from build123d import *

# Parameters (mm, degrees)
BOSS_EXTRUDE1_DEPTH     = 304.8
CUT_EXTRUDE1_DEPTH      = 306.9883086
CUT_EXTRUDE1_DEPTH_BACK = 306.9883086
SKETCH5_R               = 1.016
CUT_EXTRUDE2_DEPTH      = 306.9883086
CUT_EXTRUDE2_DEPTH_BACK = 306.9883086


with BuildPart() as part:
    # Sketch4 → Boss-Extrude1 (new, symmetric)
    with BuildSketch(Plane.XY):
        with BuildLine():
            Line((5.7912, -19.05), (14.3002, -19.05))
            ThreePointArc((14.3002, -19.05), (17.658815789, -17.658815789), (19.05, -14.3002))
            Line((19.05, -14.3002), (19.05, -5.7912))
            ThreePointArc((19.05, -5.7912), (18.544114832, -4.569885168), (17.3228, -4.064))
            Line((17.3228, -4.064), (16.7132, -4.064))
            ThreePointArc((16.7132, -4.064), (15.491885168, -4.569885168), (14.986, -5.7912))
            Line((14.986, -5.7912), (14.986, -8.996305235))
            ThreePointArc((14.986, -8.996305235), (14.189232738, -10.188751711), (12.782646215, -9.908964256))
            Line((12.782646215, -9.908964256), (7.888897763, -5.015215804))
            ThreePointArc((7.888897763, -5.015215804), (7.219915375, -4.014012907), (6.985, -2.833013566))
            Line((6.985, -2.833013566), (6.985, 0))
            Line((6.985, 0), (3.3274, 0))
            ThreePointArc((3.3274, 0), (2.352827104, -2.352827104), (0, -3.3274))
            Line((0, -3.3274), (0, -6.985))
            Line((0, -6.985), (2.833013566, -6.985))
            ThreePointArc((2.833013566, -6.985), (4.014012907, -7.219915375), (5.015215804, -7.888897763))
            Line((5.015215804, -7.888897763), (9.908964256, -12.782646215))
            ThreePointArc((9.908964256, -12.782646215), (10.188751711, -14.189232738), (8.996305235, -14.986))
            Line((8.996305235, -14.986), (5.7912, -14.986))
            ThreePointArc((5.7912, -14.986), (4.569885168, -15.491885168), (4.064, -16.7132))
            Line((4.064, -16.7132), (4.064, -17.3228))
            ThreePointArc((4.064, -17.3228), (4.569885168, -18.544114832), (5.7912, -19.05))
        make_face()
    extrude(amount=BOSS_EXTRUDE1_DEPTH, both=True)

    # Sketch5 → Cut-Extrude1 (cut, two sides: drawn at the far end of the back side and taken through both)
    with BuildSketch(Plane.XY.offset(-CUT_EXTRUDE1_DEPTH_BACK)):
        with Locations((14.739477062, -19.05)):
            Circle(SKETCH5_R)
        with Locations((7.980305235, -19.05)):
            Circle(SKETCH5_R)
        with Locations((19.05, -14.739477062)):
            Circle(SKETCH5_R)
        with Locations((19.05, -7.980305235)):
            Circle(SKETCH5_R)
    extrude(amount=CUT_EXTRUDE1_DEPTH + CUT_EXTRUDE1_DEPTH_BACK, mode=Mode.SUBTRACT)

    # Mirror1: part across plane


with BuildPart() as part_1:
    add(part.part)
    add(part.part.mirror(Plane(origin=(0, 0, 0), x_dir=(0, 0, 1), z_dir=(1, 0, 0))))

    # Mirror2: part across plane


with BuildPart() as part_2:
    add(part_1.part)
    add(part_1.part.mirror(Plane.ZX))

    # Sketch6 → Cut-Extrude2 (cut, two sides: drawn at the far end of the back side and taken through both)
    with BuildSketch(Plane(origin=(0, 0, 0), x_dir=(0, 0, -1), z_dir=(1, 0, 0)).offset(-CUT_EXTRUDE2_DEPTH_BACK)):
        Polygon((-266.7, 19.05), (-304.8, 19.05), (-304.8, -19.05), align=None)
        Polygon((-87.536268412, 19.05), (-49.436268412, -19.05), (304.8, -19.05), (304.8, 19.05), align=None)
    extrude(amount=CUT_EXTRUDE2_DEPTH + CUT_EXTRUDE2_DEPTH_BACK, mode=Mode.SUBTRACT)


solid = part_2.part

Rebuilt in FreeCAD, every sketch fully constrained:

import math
import FreeCAD as App
import Part
import Sketcher
Q = App.Units.Quantity


def add_polygon(sketch, points):
    """Adds a closed chain of lines whose ends are joined by coincident constraints."""
    first, n = sketch.GeometryCount, len(points)
    for a, b in zip(points, points[1:] + points[:1]):
        sketch.addGeometry(Part.LineSegment(App.Vector(*a, 0), App.Vector(*b, 0)), False)
    for i in range(n):
        sketch.addConstraint(Sketcher.Constraint("Coincident", first + i, 2, first + (i + 1) % n, 1))

doc = App.newDocument("Part")
body = doc.addObject("PartDesign::Body", "Body")

sketch1 = body.newObject("Sketcher::SketchObject", "Sketch")
sketch1.AttachmentSupport = (doc.getObject("XY_Plane"), [""])
sketch1.MapMode = "FlatFace"
sketch1.addGeometry(Part.LineSegment(App.Vector(5.8, -19.1, 0), App.Vector(14.3, -19.1, 0)), False)
sketch1.addGeometry(Part.ArcOfCircle(Part.Circle(App.Vector(14.3, -14.3, 0), App.Vector(0, 0, 1), 4.7), math.radians(-90), math.radians(0)), False)
sketch1.addGeometry(Part.LineSegment(App.Vector(19.1, -14.3, 0), App.Vector(19.1, -5.8, 0)), False)
sketch1.addGeometry(Part.ArcOfCircle(Part.Circle(App.Vector(17.3, -5.8, 0), App.Vector(0, 0, 1), 1.7), math.radians(0), math.radians(90)), False)
sketch1.addGeometry(Part.LineSegment(App.Vector(17.3, -4.1, 0), App.Vector(16.7, -4.1, 0)), False)
sketch1.addGeometry(Part.ArcOfCircle(Part.Circle(App.Vector(16.7, -5.8, 0), App.Vector(0, 0, 1), 1.7), math.radians(90), math.radians(180)), False)
sketch1.addGeometry(Part.LineSegment(App.Vector(15, -5.8, 0), App.Vector(15, -9, 0)), False)
sketch1.addGeometry(Part.ArcOfCircle(Part.Circle(App.Vector(13.7, -9, 0), App.Vector(0, 0, 1), 1.3), math.radians(-135), math.radians(0)), False)
sketch1.addGeometry(Part.LineSegment(App.Vector(12.8, -9.9, 0), App.Vector(7.9, -5, 0)), False)
sketch1.addGeometry(Part.ArcOfCircle(Part.Circle(App.Vector(10.1, -2.8, 0), App.Vector(0, 0, 1), 3.1), math.radians(-180), math.radians(-135)), False)
sketch1.addGeometry(Part.LineSegment(App.Vector(7, -2.8, 0), App.Vector(7, 0, 0)), False)
sketch1.addGeometry(Part.LineSegment(App.Vector(7, 0, 0), App.Vector(3.3, 0, 0)), False)
sketch1.addGeometry(Part.ArcOfCircle(Part.Circle(App.Vector(0, 0, 0), App.Vector(0, 0, 1), 3.3), math.radians(-90), math.radians(0)), False)
sketch1.addGeometry(Part.LineSegment(App.Vector(0, -3.3, 0), App.Vector(0, -7, 0)), False)
sketch1.addGeometry(Part.LineSegment(App.Vector(0, -7, 0), App.Vector(2.8, -7, 0)), False)
sketch1.addGeometry(Part.ArcOfCircle(Part.Circle(App.Vector(2.8, -10.1, 0), App.Vector(0, 0, 1), 3.1), math.radians(45), math.radians(90)), False)
sketch1.addGeometry(Part.LineSegment(App.Vector(5, -7.9, 0), App.Vector(9.9, -12.8, 0)), False)
sketch1.addGeometry(Part.ArcOfCircle(Part.Circle(App.Vector(9, -13.7, 0), App.Vector(0, 0, 1), 1.3), math.radians(-90), math.radians(45)), False)
sketch1.addGeometry(Part.LineSegment(App.Vector(9, -15, 0), App.Vector(5.8, -15, 0)), False)
sketch1.addGeometry(Part.ArcOfCircle(Part.Circle(App.Vector(5.8, -16.7, 0), App.Vector(0, 0, 1), 1.7), math.radians(90), math.radians(180)), False)
sketch1.addGeometry(Part.LineSegment(App.Vector(4.1, -16.7, 0), App.Vector(4.1, -17.3, 0)), False)
sketch1.addGeometry(Part.ArcOfCircle(Part.Circle(App.Vector(5.8, -17.3, 0), App.Vector(0, 0, 1), 1.7), math.radians(-180), math.radians(-90)), False)
sketch1.addConstraint(Sketcher.Constraint("Tangent", 0, 2, 1, 1))
sketch1.addConstraint(Sketcher.Constraint("Tangent", 1, 2, 2, 1))
sketch1.addConstraint(Sketcher.Constraint("Tangent", 2, 2, 3, 1))
sketch1.addConstraint(Sketcher.Constraint("Tangent", 3, 2, 4, 1))
sketch1.addConstraint(Sketcher.Constraint("Tangent", 4, 2, 5, 1))
sketch1.addConstraint(Sketcher.Constraint("Tangent", 5, 2, 6, 1))
sketch1.addConstraint(Sketcher.Constraint("Tangent", 6, 2, 7, 2))
sketch1.addConstraint(Sketcher.Constraint("Tangent", 7, 1, 8, 1))
sketch1.addConstraint(Sketcher.Constraint("Tangent", 8, 2, 9, 2))
sketch1.addConstraint(Sketcher.Constraint("Tangent", 9, 1, 10, 1))
sketch1.addConstraint(Sketcher.Constraint("Coincident", 10, 2, 11, 1))
sketch1.addConstraint(Sketcher.Constraint("Coincident", 11, 2, 12, 2))
sketch1.addConstraint(Sketcher.Constraint("Coincident", 12, 1, 13, 1))
sketch1.addConstraint(Sketcher.Constraint("Coincident", 13, 2, 14, 1))
sketch1.addConstraint(Sketcher.Constraint("Tangent", 14, 2, 15, 2))
sketch1.addConstraint(Sketcher.Constraint("Tangent", 15, 1, 16, 1))
sketch1.addConstraint(Sketcher.Constraint("Tangent", 16, 2, 17, 2))
sketch1.addConstraint(Sketcher.Constraint("Tangent", 17, 1, 18, 1))
sketch1.addConstraint(Sketcher.Constraint("Tangent", 18, 2, 19, 1))
sketch1.addConstraint(Sketcher.Constraint("Tangent", 19, 2, 20, 1))
sketch1.addConstraint(Sketcher.Constraint("Tangent", 20, 2, 21, 1))
sketch1.addConstraint(Sketcher.Constraint("Tangent", 21, 2, 0, 1))
sketch1.addConstraint(Sketcher.Constraint("Horizontal", 0))
sketch1.addConstraint(Sketcher.Constraint("Vertical", 2))
sketch1.addConstraint(Sketcher.Constraint("Horizontal", 4))
sketch1.addConstraint(Sketcher.Constraint("Vertical", 6))
sketch1.addConstraint(Sketcher.Constraint("Vertical", 10))
sketch1.addConstraint(Sketcher.Constraint("Horizontal", 11))
sketch1.addConstraint(Sketcher.Constraint("Vertical", 13))
sketch1.addConstraint(Sketcher.Constraint("Horizontal", 14))
sketch1.addConstraint(Sketcher.Constraint("Horizontal", 18))
sketch1.addConstraint(Sketcher.Constraint("Vertical", 20))
sketch1.addConstraint(Sketcher.Constraint("Coincident", 12, 3, -1, 1))
sketch1.addConstraint(Sketcher.Constraint("Equal", 3, 5))
sketch1.addConstraint(Sketcher.Constraint("Equal", 9, 15))
sketch1.addConstraint(Sketcher.Constraint("Equal", 7, 17))
sketch1.addConstraint(Sketcher.Constraint("Equal", 5, 19))
sketch1.addConstraint(Sketcher.Constraint("Equal", 19, 21))
sketch1.addConstraint(Sketcher.Constraint("PointOnObject", 10, 2, -1))
sketch1.addConstraint(Sketcher.Constraint("PointOnObject", 12, 1, -2))
sketch1.addConstraint(Sketcher.Constraint("Parallel", 8, 16))
sketch1.addConstraint(Sketcher.Constraint("Equal", 0, 2))
sketch1.addConstraint(Sketcher.Constraint("Equal", 18, 6))
sketch1.addConstraint(Sketcher.Constraint("Equal", 14, 10))
sketch1.addConstraint(Sketcher.Constraint("Equal", 11, 13))
sketch1.addConstraint(Sketcher.Constraint("Equal", 4, 20))
sketch1.addConstraint(Sketcher.Constraint("Equal", 8, 16))
sketch1.addConstraint(Sketcher.Constraint("Radius", 1, Q("0.187 in")))
sketch1.addConstraint(Sketcher.Constraint("Radius", 3, Q("0.068 in")))
sketch1.addConstraint(Sketcher.Constraint("Radius", 12, Q("0.131 in")))
sketch1.addConstraint(Sketcher.Constraint("Radius", 9, Q("0.1215 in")))
sketch1.addConstraint(Sketcher.Constraint("DistanceX", 0, 1, 0, 2, Q("0.335 in")))
sketch1.addConstraint(Sketcher.Constraint("DistanceX", 4, 2, 4, 1, Q("0.024 in")))
sketch1.addConstraint(Sketcher.Constraint("DistanceX", 11, 2, 11, 1, Q("0.144 in")))
sketch1.addConstraint(Sketcher.Constraint("DistanceY", 0, 2, -1, 1, Q("0.75 in")))
sketch1.addConstraint(Sketcher.Constraint("DistanceX", 17, 3, 7, 3, Q("0.185 in")))
sketch1.addConstraint(Sketcher.Constraint("Radius", 7, 1.290695))
pad1 = body.newObject("PartDesign::Pad", "Pad")
pad1.Profile = sketch1
pad1.Length = Q("24 in")
pad1.Midplane = True

sketch2 = body.newObject("Sketcher::SketchObject", "Sketch001")
sketch2.AttachmentSupport = (doc.getObject("XY_Plane"), [""])
sketch2.MapMode = "FlatFace"
sketch2.addGeometry(Part.Circle(App.Vector(14.7, -19.1, 0), App.Vector(0, 0, 1), 1), False)
sketch2.addGeometry(Part.Circle(App.Vector(8, -19.1, 0), App.Vector(0, 0, 1), 1), False)
sketch2.addGeometry(Part.Circle(App.Vector(19.1, -14.7, 0), App.Vector(0, 0, 1), 1), False)
sketch2.addGeometry(Part.Circle(App.Vector(19.1, -8, 0), App.Vector(0, 0, 1), 1), False)
sketch2.addConstraint(Sketcher.Constraint("Equal", 0, 1))
sketch2.addConstraint(Sketcher.Constraint("Equal", 1, 2))
sketch2.addConstraint(Sketcher.Constraint("Equal", 2, 3))
sketch2.addConstraint(Sketcher.Constraint("Horizontal", 0, 3, 1, 3))
sketch2.addConstraint(Sketcher.Constraint("Vertical", 2, 3, 3, 3))
sketch2.addConstraint(Sketcher.Constraint("Diameter", 0, Q("0.08 in")))
sketch2.addConstraint(Sketcher.Constraint("DistanceY", 0, 3, -1, 1, Q("0.75 in")))
sketch2.addConstraint(Sketcher.Constraint("DistanceX", -1, 1, 2, 3, Q("0.75 in")))
sketch2.addConstraint(Sketcher.Constraint("DistanceX", 1, 3, 0, 3, 6.759172))
sketch2.addConstraint(Sketcher.Constraint("DistanceY", 2, 3, 3, 3, 6.759172))
sketch2.addConstraint(Sketcher.Constraint("DistanceX", -1, 1, 0, 3, 14.739477))
sketch2.addConstraint(Sketcher.Constraint("DistanceY", 2, 3, -1, 1, 14.739477))
pocket1 = body.newObject("PartDesign::Pocket", "Pocket")
pocket1.Profile = sketch2
pocket1.Type = "ThroughAll"
pocket1.Midplane = True
body2 = doc.addObject("PartDesign::Body", "Body001")
doc.recompute()

body2.BaseFeature = body
doc.recompute()

mirroring = doc.addObject("Part::Mirroring", "Mirroring")
mirroring.Source = body
mirroring.Base = App.Vector(0, 0, 0)
mirroring.Normal = App.Vector(1, 0, 0)
body3 = doc.addObject("PartDesign::Body", "Body002")
body3.BaseFeature = mirroring
boolean = body2.newObject("PartDesign::Boolean", "Boolean")
boolean.Type = "Fuse"
boolean.addObjects([body3])
doc.recompute()
body4 = doc.addObject("PartDesign::Body", "Body003")
doc.recompute()

body4.BaseFeature = body2
doc.recompute()

mirroring2 = doc.addObject("Part::Mirroring", "Mirroring001")
mirroring2.Source = body2
mirroring2.Base = App.Vector(0, 0, 0)
mirroring2.Normal = App.Vector(0, 1, 0)
body5 = doc.addObject("PartDesign::Body", "Body004")
body5.BaseFeature = mirroring2
boolean2 = body4.newObject("PartDesign::Boolean", "Boolean001")
boolean2.Type = "Fuse"
boolean2.addObjects([body5])
doc.recompute()

sketch3 = body4.newObject("Sketcher::SketchObject", "Sketch002")
sketch3.AttachmentSupport = (doc.getObject("YZ_Plane003"), [""])
sketch3.MapMode = "FlatFace"
add_polygon(sketch3, [(19, 267), (19, 305), (-19, 305)])
add_polygon(sketch3, [(19, 88), (-19, 49), (-19, -305), (19, -305)])
sketch3.addConstraint(Sketcher.Constraint("Vertical", 0))
sketch3.addConstraint(Sketcher.Constraint("Horizontal", 1))
sketch3.addConstraint(Sketcher.Constraint("Vertical", 4))
sketch3.addConstraint(Sketcher.Constraint("Horizontal", 5))
sketch3.addConstraint(Sketcher.Constraint("Vertical", 6))
sketch3.addConstraint(Sketcher.Constraint("Symmetric", 0, 2, 4, 2, -1, 1))
sketch3.addConstraint(Sketcher.Constraint("Perpendicular", 2, 3))
sketch3.addConstraint(Sketcher.Constraint("Vertical", 1, 2, 3, 2))
sketch3.addConstraint(Sketcher.Constraint("Vertical", 2, 2, 5, 2))
sketch3.addConstraint(Sketcher.Constraint("Equal", 5, 0))
sketch3.addConstraint(Sketcher.Constraint("DistanceX", 1, 2, 1, 1, Q("1.5 in")))
sketch3.addConstraint(Sketcher.Constraint("DistanceY", -1, 1, 0, 2, Q("12 in")))
sketch3.addConstraint(Sketcher.Constraint("DistanceY", 4, 2, 4, 1, 354.236268))
pocket2 = body4.newObject("PartDesign::Pocket", "Pocket001")
pocket2.Profile = sketch3
pocket2.Type = "ThroughAll"
pocket2.Midplane = True
mirroring.Visibility = False
mirroring2.Visibility = False

doc.recompute()
